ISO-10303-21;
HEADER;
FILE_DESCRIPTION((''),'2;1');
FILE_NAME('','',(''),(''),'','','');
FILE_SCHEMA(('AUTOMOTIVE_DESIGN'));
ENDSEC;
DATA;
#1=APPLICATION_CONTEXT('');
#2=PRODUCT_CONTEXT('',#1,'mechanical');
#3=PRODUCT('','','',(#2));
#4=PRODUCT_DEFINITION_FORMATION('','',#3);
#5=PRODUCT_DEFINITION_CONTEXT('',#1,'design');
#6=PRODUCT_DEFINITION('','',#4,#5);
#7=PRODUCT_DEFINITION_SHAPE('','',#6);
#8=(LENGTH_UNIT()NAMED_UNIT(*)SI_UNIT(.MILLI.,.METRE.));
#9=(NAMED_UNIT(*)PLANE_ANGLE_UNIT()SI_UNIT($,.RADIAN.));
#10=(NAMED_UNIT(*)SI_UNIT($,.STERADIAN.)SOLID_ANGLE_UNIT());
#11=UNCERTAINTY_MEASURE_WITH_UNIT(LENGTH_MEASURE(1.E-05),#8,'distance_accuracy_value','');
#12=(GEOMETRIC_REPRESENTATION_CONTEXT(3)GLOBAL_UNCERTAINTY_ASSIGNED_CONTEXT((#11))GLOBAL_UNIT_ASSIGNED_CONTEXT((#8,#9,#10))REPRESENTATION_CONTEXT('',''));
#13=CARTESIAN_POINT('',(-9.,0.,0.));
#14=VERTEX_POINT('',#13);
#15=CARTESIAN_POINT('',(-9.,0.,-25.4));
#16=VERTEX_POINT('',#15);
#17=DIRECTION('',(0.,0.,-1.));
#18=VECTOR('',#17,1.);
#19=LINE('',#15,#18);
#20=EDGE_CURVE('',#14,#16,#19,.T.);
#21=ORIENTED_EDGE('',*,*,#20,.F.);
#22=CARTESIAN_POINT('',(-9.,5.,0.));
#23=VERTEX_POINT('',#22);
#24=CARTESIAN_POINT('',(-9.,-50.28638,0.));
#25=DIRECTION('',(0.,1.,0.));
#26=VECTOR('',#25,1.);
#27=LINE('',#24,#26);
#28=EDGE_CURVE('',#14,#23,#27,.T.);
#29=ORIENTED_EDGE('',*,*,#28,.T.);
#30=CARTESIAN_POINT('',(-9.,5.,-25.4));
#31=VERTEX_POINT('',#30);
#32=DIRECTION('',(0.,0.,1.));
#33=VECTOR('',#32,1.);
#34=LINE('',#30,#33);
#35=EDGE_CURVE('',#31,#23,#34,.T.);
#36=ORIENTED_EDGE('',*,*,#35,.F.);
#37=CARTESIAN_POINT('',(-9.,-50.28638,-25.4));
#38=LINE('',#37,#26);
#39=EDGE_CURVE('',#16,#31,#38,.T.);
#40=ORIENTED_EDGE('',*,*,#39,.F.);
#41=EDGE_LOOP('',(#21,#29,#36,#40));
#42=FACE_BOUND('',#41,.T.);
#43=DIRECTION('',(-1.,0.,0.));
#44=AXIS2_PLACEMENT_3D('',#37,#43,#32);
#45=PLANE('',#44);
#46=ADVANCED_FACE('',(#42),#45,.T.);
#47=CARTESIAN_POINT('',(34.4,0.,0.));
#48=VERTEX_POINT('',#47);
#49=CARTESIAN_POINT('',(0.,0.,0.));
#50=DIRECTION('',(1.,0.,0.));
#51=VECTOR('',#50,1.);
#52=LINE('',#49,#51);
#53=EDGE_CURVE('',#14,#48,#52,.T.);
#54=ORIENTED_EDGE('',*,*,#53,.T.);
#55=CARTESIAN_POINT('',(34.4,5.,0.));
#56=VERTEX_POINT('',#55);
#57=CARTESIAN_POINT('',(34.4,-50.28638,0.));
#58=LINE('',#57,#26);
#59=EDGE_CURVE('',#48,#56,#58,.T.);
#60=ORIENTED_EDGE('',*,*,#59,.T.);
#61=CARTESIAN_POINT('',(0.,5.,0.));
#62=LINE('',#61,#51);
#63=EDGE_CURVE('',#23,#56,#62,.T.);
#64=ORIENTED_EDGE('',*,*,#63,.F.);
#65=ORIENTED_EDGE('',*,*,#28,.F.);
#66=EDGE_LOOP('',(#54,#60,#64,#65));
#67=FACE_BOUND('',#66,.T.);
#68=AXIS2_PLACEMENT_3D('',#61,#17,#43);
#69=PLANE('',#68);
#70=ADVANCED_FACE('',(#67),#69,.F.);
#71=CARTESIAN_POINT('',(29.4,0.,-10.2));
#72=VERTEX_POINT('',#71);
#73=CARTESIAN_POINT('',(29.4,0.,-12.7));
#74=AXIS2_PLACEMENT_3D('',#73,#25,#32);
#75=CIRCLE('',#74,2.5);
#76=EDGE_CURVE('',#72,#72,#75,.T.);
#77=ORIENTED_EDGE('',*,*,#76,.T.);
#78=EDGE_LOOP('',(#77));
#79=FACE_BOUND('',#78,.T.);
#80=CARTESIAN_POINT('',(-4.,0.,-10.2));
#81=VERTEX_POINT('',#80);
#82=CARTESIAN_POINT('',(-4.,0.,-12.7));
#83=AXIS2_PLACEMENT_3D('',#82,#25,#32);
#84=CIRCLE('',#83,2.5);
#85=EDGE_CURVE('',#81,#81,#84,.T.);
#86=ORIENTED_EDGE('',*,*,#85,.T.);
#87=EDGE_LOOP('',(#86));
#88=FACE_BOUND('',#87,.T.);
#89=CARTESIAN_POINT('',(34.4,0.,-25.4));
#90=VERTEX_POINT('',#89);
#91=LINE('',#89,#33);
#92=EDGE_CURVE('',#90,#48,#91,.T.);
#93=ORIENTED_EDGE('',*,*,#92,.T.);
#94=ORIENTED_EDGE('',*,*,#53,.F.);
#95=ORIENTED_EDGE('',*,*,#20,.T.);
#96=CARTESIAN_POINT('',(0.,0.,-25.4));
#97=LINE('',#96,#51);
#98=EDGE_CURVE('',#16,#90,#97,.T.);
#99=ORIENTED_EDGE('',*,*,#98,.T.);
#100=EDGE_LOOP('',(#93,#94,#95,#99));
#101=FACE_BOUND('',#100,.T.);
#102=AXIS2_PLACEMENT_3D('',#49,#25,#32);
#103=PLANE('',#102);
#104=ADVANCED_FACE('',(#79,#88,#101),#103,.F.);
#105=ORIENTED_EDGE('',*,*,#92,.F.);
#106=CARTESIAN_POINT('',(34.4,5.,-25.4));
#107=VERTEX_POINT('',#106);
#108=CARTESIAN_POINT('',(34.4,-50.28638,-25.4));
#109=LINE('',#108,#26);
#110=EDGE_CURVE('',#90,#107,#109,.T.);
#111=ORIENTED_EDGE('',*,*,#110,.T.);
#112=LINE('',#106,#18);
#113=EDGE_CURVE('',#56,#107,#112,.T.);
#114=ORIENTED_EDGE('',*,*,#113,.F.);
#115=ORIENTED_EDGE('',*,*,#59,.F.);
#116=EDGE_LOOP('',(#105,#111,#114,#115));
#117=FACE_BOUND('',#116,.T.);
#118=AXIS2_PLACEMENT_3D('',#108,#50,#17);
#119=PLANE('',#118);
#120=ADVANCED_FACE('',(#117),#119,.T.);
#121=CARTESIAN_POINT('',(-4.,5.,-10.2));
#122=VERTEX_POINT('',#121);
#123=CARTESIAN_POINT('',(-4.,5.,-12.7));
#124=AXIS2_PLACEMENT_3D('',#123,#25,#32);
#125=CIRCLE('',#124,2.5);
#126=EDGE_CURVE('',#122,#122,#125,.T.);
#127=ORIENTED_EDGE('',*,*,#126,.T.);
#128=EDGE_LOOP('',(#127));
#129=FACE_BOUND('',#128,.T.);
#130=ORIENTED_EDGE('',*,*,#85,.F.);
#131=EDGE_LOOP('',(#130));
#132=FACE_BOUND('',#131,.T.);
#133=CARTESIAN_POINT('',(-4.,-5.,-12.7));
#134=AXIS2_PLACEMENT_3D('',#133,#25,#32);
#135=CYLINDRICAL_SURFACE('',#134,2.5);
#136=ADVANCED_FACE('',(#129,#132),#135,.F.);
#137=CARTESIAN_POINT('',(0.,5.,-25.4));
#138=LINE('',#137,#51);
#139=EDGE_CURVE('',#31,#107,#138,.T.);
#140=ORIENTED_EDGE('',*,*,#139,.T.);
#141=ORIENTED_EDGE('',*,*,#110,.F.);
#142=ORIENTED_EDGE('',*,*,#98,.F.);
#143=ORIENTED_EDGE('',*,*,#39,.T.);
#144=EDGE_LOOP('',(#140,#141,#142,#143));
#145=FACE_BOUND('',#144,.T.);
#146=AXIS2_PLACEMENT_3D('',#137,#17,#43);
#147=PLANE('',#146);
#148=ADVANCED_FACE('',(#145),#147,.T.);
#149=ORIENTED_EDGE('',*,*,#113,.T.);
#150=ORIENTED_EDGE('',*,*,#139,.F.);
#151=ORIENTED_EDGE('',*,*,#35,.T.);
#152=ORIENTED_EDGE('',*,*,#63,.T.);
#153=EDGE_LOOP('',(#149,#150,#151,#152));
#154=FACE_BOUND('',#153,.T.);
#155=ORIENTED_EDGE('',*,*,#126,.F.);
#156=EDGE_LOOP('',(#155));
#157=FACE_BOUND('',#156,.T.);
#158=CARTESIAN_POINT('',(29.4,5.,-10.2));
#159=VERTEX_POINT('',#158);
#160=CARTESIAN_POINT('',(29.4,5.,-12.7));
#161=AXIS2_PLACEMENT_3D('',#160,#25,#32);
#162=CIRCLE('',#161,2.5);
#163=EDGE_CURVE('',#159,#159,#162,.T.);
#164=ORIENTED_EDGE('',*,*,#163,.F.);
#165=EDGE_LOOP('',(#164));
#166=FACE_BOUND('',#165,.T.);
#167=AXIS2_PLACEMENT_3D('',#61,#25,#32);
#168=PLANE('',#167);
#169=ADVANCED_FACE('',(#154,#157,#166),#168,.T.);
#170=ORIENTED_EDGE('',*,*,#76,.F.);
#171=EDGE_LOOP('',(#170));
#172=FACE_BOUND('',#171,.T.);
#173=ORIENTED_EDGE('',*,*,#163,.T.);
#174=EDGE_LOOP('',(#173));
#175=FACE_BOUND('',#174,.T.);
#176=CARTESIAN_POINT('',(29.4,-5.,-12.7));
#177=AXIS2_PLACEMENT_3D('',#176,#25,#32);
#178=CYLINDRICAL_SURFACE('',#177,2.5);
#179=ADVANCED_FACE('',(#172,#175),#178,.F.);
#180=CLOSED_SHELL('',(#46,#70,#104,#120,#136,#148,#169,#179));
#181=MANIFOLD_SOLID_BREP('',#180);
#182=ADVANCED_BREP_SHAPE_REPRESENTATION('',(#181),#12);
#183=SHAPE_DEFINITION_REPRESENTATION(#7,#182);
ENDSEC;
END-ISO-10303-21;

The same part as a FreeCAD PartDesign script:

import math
import FreeCAD as App
import Part
import Sketcher

V = App.Vector


def edges_at(feature, points):
    """Names of the edges that pass closest to the given points."""
    edges = feature.Shape.Edges
    near = lambda p: min(range(len(edges)), key=lambda i: edges[i].distToShape(Part.Vertex(*p))[0])
    return sorted({f"Edge{near(p) + 1}" for p in points})


def add_polygon(sketch, points):
    """Adds a closed chain of lines whose ends are joined by coincident constraints."""
    first, n = sketch.GeometryCount, len(points)
    for a, b in zip(points, points[1:] + points[:1]):
        sketch.addGeometry(Part.LineSegment(App.Vector(*a, 0), App.Vector(*b, 0)), False)
    for i in range(n):
        sketch.addConstraint(Sketcher.Constraint("Coincident", first + i, 2, first + (i + 1) % n, 1))

doc = App.newDocument("Part")
body = doc.addObject("PartDesign::Body", "Body")

# Sketch on XZ plane
sketch1 = body.newObject("Sketcher::SketchObject", "Sketch")
sketch1.AttachmentSupport = (doc.getObject("XZ_Plane"), [""])
sketch1.MapMode = "FlatFace"
add_polygon(sketch1, [(0, -25.4), (0, 0), (25.4, 0), (25.4, -25.4)])  # lines 0-3
sketch1.addConstraint(Sketcher.Constraint("Vertical", 0))
sketch1.addConstraint(Sketcher.Constraint("Horizontal", 1))
sketch1.addConstraint(Sketcher.Constraint("Vertical", 2))
sketch1.addConstraint(Sketcher.Constraint("Horizontal", 3))
sketch1.addConstraint(Sketcher.Constraint("Coincident", 0, 2, -1, 1))
sketch1.addConstraint(Sketcher.Constraint("Equal", 3, 0))
sketch1.addConstraint(Sketcher.Constraint("DistanceX", 1, 1, 1, 2, 25.4))
pad1 = body.newObject("PartDesign::Pad", "Pad")
pad1.Profile = sketch1
pad1.Length = 5
pad1.Reversed = True

# Sketch on XZ plane
sketch2 = body.newObject("Sketcher::SketchObject", "Sketch001")
sketch2.AttachmentSupport = (doc.getObject("XZ_Plane"), [""])
sketch2.MapMode = "FlatFace"
sketch2.addGeometry(Part.LineSegment(V(25.4, -9.7, 0), V(25.4, 0, 0)), False)
sketch2.addGeometry(Part.LineSegment(V(25.4, 0, 0), V(0, 0, 0)), False)
sketch2.addGeometry(Part.LineSegment(V(0, 0, 0), V(0, -9.7, 0)), False)
sketch2.addGeometry(Part.ArcOfCircle(Part.Circle(V(-4, -12.7, 0), V(0, 0, 1), 5), math.radians(36.869898), math.radians(323.130102)), False)
sketch2.addGeometry(Part.LineSegment(V(0, -15.7, 0), V(0, -25.4, 0)), False)
sketch2.addGeometry(Part.LineSegment(V(0, -25.4, 0), V(9.7, -25.4, 0)), False)
sketch2.addGeometry(Part.ArcOfCircle(Part.Circle(V(12.7, -29.4, 0), V(0, 0, 1), 5), math.radians(126.869898), math.radians(413.130102)), False)
sketch2.addGeometry(Part.LineSegment(V(15.7, -25.4, 0), V(25.4, -25.4, 0)), False)
sketch2.addGeometry(Part.LineSegment(V(25.4, -25.4, 0), V(25.4, -15.7, 0)), False)
sketch2.addGeometry(Part.ArcOfCircle(Part.Circle(V(29.4, -12.7, 0), V(0, 0, 1), 5), math.radians(-143.130102), math.radians(143.130102)), False)
sketch2.addConstraint(Sketcher.Constraint("Coincident", 0, 2, 1, 1))
sketch2.addConstraint(Sketcher.Constraint("Coincident", 1, 2, 2, 1))
sketch2.addConstraint(Sketcher.Constraint("Coincident", 2, 2, 3, 1))
sketch2.addConstraint(Sketcher.Constraint("Coincident", 3, 2, 4, 1))
sketch2.addConstraint(Sketcher.Constraint("Coincident", 4, 2, 5, 1))
sketch2.addConstraint(Sketcher.Constraint("Coincident", 5, 2, 6, 1))
sketch2.addConstraint(Sketcher.Constraint("Coincident", 6, 2, 7, 1))
sketch2.addConstraint(Sketcher.Constraint("Coincident", 7, 2, 8, 1))
sketch2.addConstraint(Sketcher.Constraint("Coincident", 8, 2, 9, 1))
sketch2.addConstraint(Sketcher.Constraint("Coincident", 9, 2, 0, 1))
sketch2.addConstraint(Sketcher.Constraint("Vertical", 0))
sketch2.addConstraint(Sketcher.Constraint("Horizontal", 1))
sketch2.addConstraint(Sketcher.Constraint("Vertical", 2))
sketch2.addConstraint(Sketcher.Constraint("Vertical", 4))
sketch2.addConstraint(Sketcher.Constraint("Horizontal", 5))
sketch2.addConstraint(Sketcher.Constraint("Horizontal", 7))
sketch2.addConstraint(Sketcher.Constraint("Vertical", 8))
sketch2.addConstraint(Sketcher.Constraint("Coincident", 1, 2, -1, 1))
sketch2.addConstraint(Sketcher.Constraint("Equal", 3, 6))
sketch2.addConstraint(Sketcher.Constraint("Equal", 6, 9))
sketch2.addConstraint(Sketcher.Constraint("PointOnObject", 3, 2, -2))
sketch2.addConstraint(Sketcher.Constraint("Horizontal", 3, 3, 9, 3))
sketch2.addConstraint(Sketcher.Constraint("Horizontal", 5, 2, 6, 2))
sketch2.addConstraint(Sketcher.Constraint("Horizontal", 3, 2, 8, 2))
sketch2.addConstraint(Sketcher.Constraint("Horizontal", 2, 2, 9, 2))
sketch2.addConstraint(Sketcher.Constraint("Equal", 5, 7))
sketch2.addConstraint(Sketcher.Constraint("Equal", 7, 0))
sketch2.addConstraint(Sketcher.Constraint("Equal", 2, 4))
sketch2.addConstraint(Sketcher.Constraint("Radius", 3, 5.0))
sketch2.addConstraint(Sketcher.Constraint("DistanceX", 1, 2, 1, 1, 25.4))
sketch2.addConstraint(Sketcher.Constraint("DistanceX", 5, 1, 5, 2, 9.7))
sketch2.addConstraint(Sketcher.Constraint("DistanceX", 3, 3, -1, 1, 4.0))
pad2 = body.newObject("PartDesign::Pad", "Pad001")
pad2.Profile = sketch2
pad2.Length = 5
pad2.Reversed = True
doc.recompute()

fillet = body.newObject("PartDesign::Fillet", "Fillet")
fillet.Base = (pad2, edges_at(pad2, [
    (25.4, 2.5, -9.7),
    (25.4, 2.5, -15.7),
    (15.7, 2.5, -25.4),
    (9.7, 2.5, -25.4),
    (0, 2.5, -15.7),
    (0, 2.5, -9.7),
]))
fillet.Radius = 5

# Sketch on XZ plane
sketch3 = body.newObject("Sketcher::SketchObject", "Sketch002")
sketch3.AttachmentSupport = (doc.getObject("XZ_Plane"), [""])
sketch3.MapMode = "FlatFace"
sketch3.AttachmentOffset = App.Placement(V(0, 0, -5), App.Rotation())
sketch3.addGeometry(Part.Circle(V(-4, -12.7, 0), V(0, 0, 1), 1), False)
sketch3.addGeometry(Part.Circle(V(12.7, -29.4, 0), V(0, 0, 1), 1), False)
sketch3.addGeometry(Part.Circle(V(29.4, -12.7, 0), V(0, 0, 1), 1), False)
sketch3.addConstraint(Sketcher.Constraint("Equal", 0, 1))
sketch3.addConstraint(Sketcher.Constraint("Equal", 1, 2))
sketch3.addConstraint(Sketcher.Constraint("Horizontal", 0, 3, 2, 3))
sketch3.addConstraint(Sketcher.Constraint("Diameter", 0, 2.0))
sketch3.addConstraint(Sketcher.Constraint("DistanceX", 0, 3, -1, 1, 4.0))
sketch3.addConstraint(Sketcher.Constraint("DistanceY", 0, 3, -1, 1, 12.7))
sketch3.addConstraint(Sketcher.Constraint("DistanceX", -1, 1, 1, 3, 12.7))
sketch3.addConstraint(Sketcher.Constraint("DistanceY", 1, 3, -1, 1, 29.4))
sketch3.addConstraint(Sketcher.Constraint("DistanceX", -1, 1, 2, 3, 29.4))
pocket1 = body.newObject("PartDesign::Pocket", "Pocket")
pocket1.Profile = sketch3
pocket1.Length = 5
pocket1.Reversed = True

# Sketch on XZ plane
sketch4 = body.newObject("Sketcher::SketchObject", "Sketch003")
sketch4.AttachmentSupport = (doc.getObject("XZ_Plane"), [""])
sketch4.MapMode = "FlatFace"
sketch4.AttachmentOffset = App.Placement(V(0, 0, -5), App.Rotation())
add_polygon(sketch4, [(0, -35.201759), (0, -25.4), (28.09827, -25.4), (28.09827, -35.201759)])  # lines 0-3
sketch4.addConstraint(Sketcher.Constraint("Vertical", 0))
sketch4.addConstraint(Sketcher.Constraint("Horizontal", 1))
sketch4.addConstraint(Sketcher.Constraint("Vertical", 2))
sketch4.addConstraint(Sketcher.Constraint("Horizontal", 3))
sketch4.addConstraint(Sketcher.Constraint("PointOnObject", 0, 2, -2))
sketch4.addConstraint(Sketcher.Constraint("DistanceY", 0, 2, -1, 1, 25.4))
sketch4.addConstraint(Sketcher.Constraint("DistanceX", 1, 1, 1, 2, 28.09827))
sketch4.addConstraint(Sketcher.Constraint("DistanceY", 0, 1, 0, 2, 9.801759))
pocket2 = body.newObject("PartDesign::Pocket", "Pocket001")
pocket2.Profile = sketch4
pocket2.Type = "ThroughAll"
pocket2.Reversed = True

# Sketch on XZ plane
sketch5 = body.newObject("Sketcher::SketchObject", "Sketch004")
sketch5.AttachmentSupport = (doc.getObject("XZ_Plane"), [""])
sketch5.MapMode = "FlatFace"
sketch5.AttachmentOffset = App.Placement(V(0, 0, -5), App.Rotation())
add_polygon(sketch5, [(-9, -25.4), (-9, 0), (34.4, 0), (34.4, -25.4)])  # lines 0-3
sketch5.addGeometry(Part.Circle(V(-4, -12.7, 0), V(0, 0, 1), 2.5), False)  # 4
sketch5.addGeometry(Part.Circle(V(29.4, -12.7, 0), V(0, 0, 1), 2.5), False)  # 5
sketch5.addConstraint(Sketcher.Constraint("Vertical", 0))
sketch5.addConstraint(Sketcher.Constraint("Horizontal", 1))
sketch5.addConstraint(Sketcher.Constraint("Vertical", 2))
sketch5.addConstraint(Sketcher.Constraint("Horizontal", 3))
sketch5.addConstraint(Sketcher.Constraint("Equal", 4, 5))
sketch5.addConstraint(Sketcher.Constraint("PointOnObject", 0, 2, -1))
sketch5.addConstraint(Sketcher.Constraint("Horizontal", 4, 3, 5, 3))
sketch5.addConstraint(Sketcher.Constraint("Diameter", 4, 5.0))
sketch5.addConstraint(Sketcher.Constraint("DistanceX", 1, 1, 1, 2, 43.4))
sketch5.addConstraint(Sketcher.Constraint("DistanceY", 0, 1, 0, 2, 25.4))
sketch5.addConstraint(Sketcher.Constraint("DistanceX", 4, 3, -1, 1, 4.0))
sketch5.addConstraint(Sketcher.Constraint("DistanceX", 0, 2, -1, 1, 9.0))
sketch5.addConstraint(Sketcher.Constraint("DistanceX", 5, 3, 1, 2, 5.0))
sketch5.addConstraint(Sketcher.Constraint("DistanceY", 4, 3, -1, 1, 12.7))
pad3 = body.newObject("PartDesign::Pad", "Pad002")
pad3.Profile = sketch5
pad3.Length = 5

# Sketch on XZ plane
sketch6 = body.newObject("Sketcher::SketchObject", "Sketch005")
sketch6.AttachmentSupport = (doc.getObject("XZ_Plane"), [""])
sketch6.MapMode = "FlatFace"
sketch6.AttachmentOffset = App.Placement(V(0, 0, -5), App.Rotation())
sketch6.addGeometry(Part.Circle(V(-4, -12.7, 0), V(0, 0, 1), 2.5), False)
sketch6.addGeometry(Part.Circle(V(29.4, -12.7, 0), V(0, 0, 1), 2.5), False)
sketch6.addConstraint(Sketcher.Constraint("Equal", 0, 1))
sketch6.addConstraint(Sketcher.Constraint("Horizontal", 0, 3, 1, 3))
sketch6.addConstraint(Sketcher.Constraint("Diameter", 0, 5.0))
sketch6.addConstraint(Sketcher.Constraint("DistanceX", 0, 3, -1, 1, 4.0))
sketch6.addConstraint(Sketcher.Constraint("DistanceY", 0, 3, -1, 1, 12.7))
sketch6.addConstraint(Sketcher.Constraint("DistanceX", -1, 1, 1, 3, 29.4))
pocket3 = body.newObject("PartDesign::Pocket", "Pocket002")
pocket3.Profile = sketch6
pocket3.Length = 10
pocket3.Reversed = True

doc.recompute()
